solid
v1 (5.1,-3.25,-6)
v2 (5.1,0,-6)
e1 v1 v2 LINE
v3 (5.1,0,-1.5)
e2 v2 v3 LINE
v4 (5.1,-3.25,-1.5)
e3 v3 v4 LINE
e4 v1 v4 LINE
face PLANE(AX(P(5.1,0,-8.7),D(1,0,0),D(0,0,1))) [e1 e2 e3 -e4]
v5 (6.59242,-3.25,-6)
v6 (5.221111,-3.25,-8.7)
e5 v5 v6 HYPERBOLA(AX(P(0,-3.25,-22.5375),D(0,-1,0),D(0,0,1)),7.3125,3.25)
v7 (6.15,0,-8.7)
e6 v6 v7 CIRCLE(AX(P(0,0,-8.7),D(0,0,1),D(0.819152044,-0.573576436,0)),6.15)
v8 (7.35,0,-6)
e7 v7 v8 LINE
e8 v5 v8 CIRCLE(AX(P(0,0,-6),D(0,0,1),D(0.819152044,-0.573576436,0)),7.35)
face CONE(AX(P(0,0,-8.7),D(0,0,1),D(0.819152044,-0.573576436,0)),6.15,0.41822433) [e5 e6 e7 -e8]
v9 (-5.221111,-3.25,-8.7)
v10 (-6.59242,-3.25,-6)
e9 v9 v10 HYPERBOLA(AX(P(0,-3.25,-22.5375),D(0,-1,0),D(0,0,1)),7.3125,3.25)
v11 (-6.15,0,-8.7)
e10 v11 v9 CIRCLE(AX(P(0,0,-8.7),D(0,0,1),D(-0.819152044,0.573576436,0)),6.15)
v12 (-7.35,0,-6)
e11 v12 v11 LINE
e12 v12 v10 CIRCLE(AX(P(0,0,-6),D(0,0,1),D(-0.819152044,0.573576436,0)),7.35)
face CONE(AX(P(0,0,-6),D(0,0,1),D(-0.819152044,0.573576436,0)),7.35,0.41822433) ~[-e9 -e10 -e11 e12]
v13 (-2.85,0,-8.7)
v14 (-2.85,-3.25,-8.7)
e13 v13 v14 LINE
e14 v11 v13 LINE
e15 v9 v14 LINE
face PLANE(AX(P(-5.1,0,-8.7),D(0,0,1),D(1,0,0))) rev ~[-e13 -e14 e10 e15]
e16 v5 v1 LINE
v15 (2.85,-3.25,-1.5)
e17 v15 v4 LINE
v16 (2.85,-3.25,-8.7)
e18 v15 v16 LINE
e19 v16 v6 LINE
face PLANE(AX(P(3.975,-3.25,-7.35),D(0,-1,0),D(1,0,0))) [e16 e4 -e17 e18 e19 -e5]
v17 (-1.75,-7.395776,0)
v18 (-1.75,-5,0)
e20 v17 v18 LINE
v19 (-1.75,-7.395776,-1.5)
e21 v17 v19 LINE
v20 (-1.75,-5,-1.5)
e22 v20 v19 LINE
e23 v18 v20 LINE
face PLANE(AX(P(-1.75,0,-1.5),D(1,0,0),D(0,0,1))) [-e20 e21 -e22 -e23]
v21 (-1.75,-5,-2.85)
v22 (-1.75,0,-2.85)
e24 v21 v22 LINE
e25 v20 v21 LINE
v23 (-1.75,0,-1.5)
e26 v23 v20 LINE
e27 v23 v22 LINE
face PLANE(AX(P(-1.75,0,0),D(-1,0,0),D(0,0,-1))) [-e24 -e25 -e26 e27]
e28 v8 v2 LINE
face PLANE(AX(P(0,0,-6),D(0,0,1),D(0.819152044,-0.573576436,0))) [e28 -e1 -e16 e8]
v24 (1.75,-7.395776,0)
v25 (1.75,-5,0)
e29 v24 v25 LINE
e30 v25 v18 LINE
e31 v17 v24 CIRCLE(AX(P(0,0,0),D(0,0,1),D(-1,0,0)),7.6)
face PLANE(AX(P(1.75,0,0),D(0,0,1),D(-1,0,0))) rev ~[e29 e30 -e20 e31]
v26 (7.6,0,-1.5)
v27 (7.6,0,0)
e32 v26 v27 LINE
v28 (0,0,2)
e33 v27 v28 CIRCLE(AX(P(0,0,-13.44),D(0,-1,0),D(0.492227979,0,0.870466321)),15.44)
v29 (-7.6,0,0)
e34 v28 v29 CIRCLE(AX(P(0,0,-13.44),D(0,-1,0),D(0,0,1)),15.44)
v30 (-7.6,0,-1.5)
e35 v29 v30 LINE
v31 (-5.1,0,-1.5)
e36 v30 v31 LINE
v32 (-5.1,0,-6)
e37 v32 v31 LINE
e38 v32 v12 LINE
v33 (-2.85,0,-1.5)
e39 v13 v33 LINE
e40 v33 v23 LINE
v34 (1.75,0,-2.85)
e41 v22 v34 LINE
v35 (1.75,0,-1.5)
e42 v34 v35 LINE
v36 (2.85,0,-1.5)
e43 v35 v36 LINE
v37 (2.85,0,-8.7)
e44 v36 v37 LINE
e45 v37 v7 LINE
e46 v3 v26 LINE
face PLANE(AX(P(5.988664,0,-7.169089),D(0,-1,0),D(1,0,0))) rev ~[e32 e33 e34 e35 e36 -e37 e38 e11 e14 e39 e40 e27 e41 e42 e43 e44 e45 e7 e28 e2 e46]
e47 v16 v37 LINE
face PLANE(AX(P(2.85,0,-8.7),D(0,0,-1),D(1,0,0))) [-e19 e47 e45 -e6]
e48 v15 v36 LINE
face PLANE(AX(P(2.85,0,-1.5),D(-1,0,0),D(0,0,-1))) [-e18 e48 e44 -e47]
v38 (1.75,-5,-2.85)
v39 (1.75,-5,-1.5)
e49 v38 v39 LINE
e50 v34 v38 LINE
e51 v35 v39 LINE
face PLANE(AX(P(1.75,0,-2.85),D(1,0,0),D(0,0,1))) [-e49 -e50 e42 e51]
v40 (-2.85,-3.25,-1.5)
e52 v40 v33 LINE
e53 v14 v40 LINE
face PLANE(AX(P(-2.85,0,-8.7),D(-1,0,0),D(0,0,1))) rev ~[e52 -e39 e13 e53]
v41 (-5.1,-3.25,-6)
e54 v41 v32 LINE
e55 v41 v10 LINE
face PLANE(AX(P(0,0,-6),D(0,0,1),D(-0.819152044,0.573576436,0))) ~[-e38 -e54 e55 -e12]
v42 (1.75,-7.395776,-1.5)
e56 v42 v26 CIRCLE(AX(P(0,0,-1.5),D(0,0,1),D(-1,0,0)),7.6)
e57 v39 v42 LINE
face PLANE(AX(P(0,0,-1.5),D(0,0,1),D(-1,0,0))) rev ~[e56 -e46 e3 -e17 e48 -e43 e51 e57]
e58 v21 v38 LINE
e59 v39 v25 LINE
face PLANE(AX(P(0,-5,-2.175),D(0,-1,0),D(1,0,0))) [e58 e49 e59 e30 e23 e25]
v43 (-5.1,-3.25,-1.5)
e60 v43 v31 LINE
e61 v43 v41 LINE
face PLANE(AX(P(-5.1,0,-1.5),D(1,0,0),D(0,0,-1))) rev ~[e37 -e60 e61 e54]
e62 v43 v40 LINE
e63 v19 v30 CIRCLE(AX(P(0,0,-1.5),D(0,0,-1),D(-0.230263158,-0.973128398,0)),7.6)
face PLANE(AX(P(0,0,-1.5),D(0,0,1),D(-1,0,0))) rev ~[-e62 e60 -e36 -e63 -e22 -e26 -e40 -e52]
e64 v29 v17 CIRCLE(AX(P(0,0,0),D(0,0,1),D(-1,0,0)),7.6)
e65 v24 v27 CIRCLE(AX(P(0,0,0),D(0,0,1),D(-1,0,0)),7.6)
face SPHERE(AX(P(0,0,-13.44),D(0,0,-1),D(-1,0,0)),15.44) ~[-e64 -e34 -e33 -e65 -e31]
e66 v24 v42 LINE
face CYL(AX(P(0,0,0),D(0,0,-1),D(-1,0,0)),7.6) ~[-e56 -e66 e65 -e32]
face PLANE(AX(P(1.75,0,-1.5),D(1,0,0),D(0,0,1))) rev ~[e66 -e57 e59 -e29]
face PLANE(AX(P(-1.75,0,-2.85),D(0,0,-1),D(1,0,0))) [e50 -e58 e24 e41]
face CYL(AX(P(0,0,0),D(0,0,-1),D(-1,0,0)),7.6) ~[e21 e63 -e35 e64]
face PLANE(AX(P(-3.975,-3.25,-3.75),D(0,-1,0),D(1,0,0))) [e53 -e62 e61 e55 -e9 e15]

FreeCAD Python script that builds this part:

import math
import FreeCAD as App
import Part
import Sketcher

doc = App.newDocument("Part")
body = doc.addObject("PartDesign::Body", "Body")

# Sketch on XZ plane
sketch1 = body.newObject("Sketcher::SketchObject", "Sketch")
sketch1.AttachmentSupport = (doc.getObject("XZ_Plane"), [""])
sketch1.MapMode = "FlatFace"
sketch1.addGeometry(Part.LineSegment(App.Vector(-7.6, 0, 0), App.Vector(-7.6, -1.5, 0)), False)
sketch1.addGeometry(Part.LineSegment(App.Vector(-7.6, -1.5, 0), App.Vector(0, -1.5, 0)), False)
sketch1.addGeometry(Part.LineSegment(App.Vector(0, -1.5, 0), App.Vector(0, 2, 0)), False)
sketch1.addGeometry(Part.ArcOfCircle(Part.Circle(App.Vector(0, -13.44, 0), App.Vector(0, 0, 1), 15.44), math.radians(90), math.radians(119.487126)), False)
sketch1.addConstraint(Sketcher.Constraint("Coincident", 0, 2, 1, 1))
sketch1.addConstraint(Sketcher.Constraint("Coincident", 1, 2, 2, 1))
sketch1.addConstraint(Sketcher.Constraint("Coincident", 2, 2, 3, 1))
sketch1.addConstraint(Sketcher.Constraint("Coincident", 3, 2, 0, 1))
sketch1.addConstraint(Sketcher.Constraint("Vertical", 0))
sketch1.addConstraint(Sketcher.Constraint("Horizontal", 1))
sketch1.addConstraint(Sketcher.Constraint("Vertical", 2))
sketch1.addConstraint(Sketcher.Constraint("PointOnObject", 3, 3, -2))
sketch1.addConstraint(Sketcher.Constraint("PointOnObject", 1, 2, -2))
sketch1.addConstraint(Sketcher.Constraint("PointOnObject", 3, 2, -1))
sketch1.addConstraint(Sketcher.Constraint("Radius", 3, 15.44))
sketch1.addConstraint(Sketcher.Constraint("DistanceX", 1, 1, 1, 2, 7.6))
sketch1.addConstraint(Sketcher.Constraint("DistanceY", 0, 2, 0, 1, 1.5))
revolution = body.newObject("PartDesign::Revolution", "Revolution")
revolution.Profile = sketch1
revolution.ReferenceAxis = (sketch1, ["V_Axis"])
revolution.Angle = 360

# Sketch on XZ plane
sketch2 = body.newObject("Sketcher::SketchObject", "Sketch001")
sketch2.AttachmentSupport = (doc.getObject("XZ_Plane"), [""])
sketch2.MapMode = "FlatFace"
sketch2.addGeometry(Part.LineSegment(App.Vector(-5.1, -1.5, 0), App.Vector(-5.1, -8.7, 0)), False)
sketch2.addGeometry(Part.LineSegment(App.Vector(-5.1, -8.7, 0), App.Vector(-2.85, -8.7, 0)), False)
sketch2.addGeometry(Part.LineSegment(App.Vector(-2.85, -8.7, 0), App.Vector(-2.85, -1.5, 0)), False)
sketch2.addGeometry(Part.LineSegment(App.Vector(-2.85, -1.5, 0), App.Vector(-5.1, -1.5, 0)), False)
sketch2.addGeometry(Part.LineSegment(App.Vector(2.85, -8.7, 0), App.Vector(5.1, -8.7, 0)), False)
sketch2.addGeometry(Part.LineSegment(App.Vector(5.1, -8.7, 0), App.Vector(5.1, -1.5, 0)), False)
sketch2.addGeometry(Part.LineSegment(App.Vector(5.1, -1.5, 0), App.Vector(2.85, -1.5, 0)), False)
sketch2.addGeometry(Part.LineSegment(App.Vector(2.85, -1.5, 0), App.Vector(2.85, -8.7, 0)), False)
sketch2.addConstraint(Sketcher.Constraint("Coincident", 0, 2, 1, 1))
sketch2.addConstraint(Sketcher.Constraint("Coincident", 1, 2, 2, 1))
sketch2.addConstraint(Sketcher.Constraint("Coincident", 2, 2, 3, 1))
sketch2.addConstraint(Sketcher.Constraint("Coincident", 3, 2, 0, 1))
sketch2.addConstraint(Sketcher.Constraint("Coincident", 4, 2, 5, 1))
sketch2.addConstraint(Sketcher.Constraint("Coincident", 5, 2, 6, 1))
sketch2.addConstraint(Sketcher.Constraint("Coincident", 6, 2, 7, 1))
sketch2.addConstraint(Sketcher.Constraint("Coincident", 7, 2, 4, 1))
sketch2.addConstraint(Sketcher.Constraint("Vertical", 0))
sketch2.addConstraint(Sketcher.Constraint("Horizontal", 1))
sketch2.addConstraint(Sketcher.Constraint("Vertical", 2))
sketch2.addConstraint(Sketcher.Constraint("Horizontal", 3))
sketch2.addConstraint(Sketcher.Constraint("Horizontal", 4))
sketch2.addConstraint(Sketcher.Constraint("Vertical", 5))
sketch2.addConstraint(Sketcher.Constraint("Horizontal", 6))
sketch2.addConstraint(Sketcher.Constraint("Vertical", 7))
sketch2.addConstraint(Sketcher.Constraint("Symmetric", 0, 2, 4, 2, -2))
sketch2.addConstraint(Sketcher.Constraint("Symmetric", 2, 2, 6, 2, -2))
sketch2.addConstraint(Sketcher.Constraint("DistanceY", 0, 2, 0, 1, 7.2))
sketch2.addConstraint(Sketcher.Constraint("DistanceX", 1, 1, 1, 2, 2.25))
sketch2.addConstraint(Sketcher.Constraint("DistanceX", 0, 2, -1, 1, 5.1))
sketch2.addConstraint(Sketcher.Constraint("DistanceY", 0, 2, -1, 1, 8.7))
pad1 = body.newObject("PartDesign::Pad", "Pad")
pad1.Profile = sketch2
pad1.Length = 6.5
pad1.Midplane = True

# Sketch on an angled plane
sketch3 = body.newObject("Sketcher::SketchObject", "Sketch002")
sketch3.Placement = App.Placement(App.Vector(0, 0, 0), App.Rotation(App.Vector(0.819152044, -0.573576436, 0), App.Vector(0, 0, 0.999999999), App.Vector(-0.573576436, -0.819152044, 0), "ZXY"))
sketch3.addGeometry(Part.LineSegment(App.Vector(-5.1, -8.7, 0), App.Vector(-5.1, -6, 0)), False)
sketch3.addGeometry(Part.LineSegment(App.Vector(-5.1, -6, 0), App.Vector(-7.35, -6, 0)), False)
sketch3.addGeometry(Part.LineSegment(App.Vector(-7.35, -6, 0), App.Vector(-6.15, -8.7, 0)), False)
sketch3.addGeometry(Part.LineSegment(App.Vector(-6.15, -8.7, 0), App.Vector(-5.1, -8.7, 0)), False)
sketch3.addGeometry(Part.LineSegment(App.Vector(7.35, -6, 0), App.Vector(5.1, -6, 0)), False)
sketch3.addGeometry(Part.LineSegment(App.Vector(5.1, -6, 0), App.Vector(5.1, -8.7, 0)), False)
sketch3.addGeometry(Part.LineSegment(App.Vector(5.1, -8.7, 0), App.Vector(6.15, -8.7, 0)), False)
sketch3.addGeometry(Part.LineSegment(App.Vector(6.15, -8.7, 0), App.Vector(7.35, -6, 0)), False)
sketch3.addConstraint(Sketcher.Constraint("Coincident", 0, 2, 1, 1))
sketch3.addConstraint(Sketcher.Constraint("Coincident", 1, 2, 2, 1))
sketch3.addConstraint(Sketcher.Constraint("Coincident", 2, 2, 3, 1))
sketch3.addConstraint(Sketcher.Constraint("Coincident", 3, 2, 0, 1))
sketch3.addConstraint(Sketcher.Constraint("Coincident", 4, 2, 5, 1))
sketch3.addConstraint(Sketcher.Constraint("Coincident", 5, 2, 6, 1))
sketch3.addConstraint(Sketcher.Constraint("Coincident", 6, 2, 7, 1))
sketch3.addConstraint(Sketcher.Constraint("Coincident", 7, 2, 4, 1))
sketch3.addConstraint(Sketcher.Constraint("Vertical", 0))
sketch3.addConstraint(Sketcher.Constraint("Horizontal", 1))
sketch3.addConstraint(Sketcher.Constraint("Horizontal", 3))
sketch3.addConstraint(Sketcher.Constraint("Horizontal", 4))
sketch3.addConstraint(Sketcher.Constraint("Vertical", 5))
sketch3.addConstraint(Sketcher.Constraint("Horizontal", 6))
sketch3.addConstraint(Sketcher.Constraint("Symmetric", 0, 2, 4, 2, -2))
sketch3.addConstraint(Sketcher.Constraint("Symmetric", 2, 2, 6, 2, -2))
sketch3.addConstraint(Sketcher.Constraint("Equal", 1, 4))
sketch3.addConstraint(Sketcher.Constraint("DistanceY", 0, 1, 0, 2, 2.7))
sketch3.addConstraint(Sketcher.Constraint("DistanceY", 0, 2, -1, 1, 6.0))
sketch3.addConstraint(Sketcher.Constraint("DistanceX", 1, 2, 1, 1, 2.25))
sketch3.addConstraint(Sketcher.Constraint("DistanceX", 3, 1, 3, 2, 1.05))
sketch3.addConstraint(Sketcher.Constraint("DistanceX", 0, 2, -1, 1, 5.1))
revolution2 = body.newObject("PartDesign::Revolution", "Revolution001")
revolution2.Profile = sketch3
revolution2.ReferenceAxis = (sketch3, ["V_Axis"])
revolution2.Angle = 70

# Sketch on XZ plane
sketch4 = body.newObject("Sketcher::SketchObject", "Sketch003")
sketch4.AttachmentSupport = (doc.getObject("XZ_Plane"), [""])
sketch4.MapMode = "FlatFace"
sketch4.addGeometry(Part.LineSegment(App.Vector(-1.75, 0, 0), App.Vector(-1.75, -1.5, 0)), False)
sketch4.addGeometry(Part.LineSegment(App.Vector(-1.75, -1.5, 0), App.Vector(1.75, -1.5, 0)), False)
sketch4.addGeometry(Part.LineSegment(App.Vector(1.75, -1.5, 0), App.Vector(1.75, 0, 0)), False)
sketch4.addGeometry(Part.LineSegment(App.Vector(1.75, 0, 0), App.Vector(-1.75, 0, 0)), False)
sketch4.addConstraint(Sketcher.Constraint("Coincident", 0, 2, 1, 1))
sketch4.addConstraint(Sketcher.Constraint("Coincident", 1, 2, 2, 1))
sketch4.addConstraint(Sketcher.Constraint("Coincident", 2, 2, 3, 1))
sketch4.addConstraint(Sketcher.Constraint("Coincident", 3, 2, 0, 1))
sketch4.addConstraint(Sketcher.Constraint("Vertical", 0))
sketch4.addConstraint(Sketcher.Constraint("Horizontal", 1))
sketch4.addConstraint(Sketcher.Constraint("Vertical", 2))
sketch4.addConstraint(Sketcher.Constraint("Horizontal", 3))
sketch4.addConstraint(Sketcher.Constraint("Symmetric", 2, 2, 3, 2, -1, 1))
sketch4.addConstraint(Sketcher.Constraint("DistanceX", 1, 1, 1, 2, 3.5))
sketch4.addConstraint(Sketcher.Constraint("DistanceY", 0, 2, 0, 1, 1.5))
pocket1 = body.newObject("PartDesign::Pocket", "Pocket")
pocket1.Profile = sketch4
pocket1.Length = 25
pocket1.Midplane = True

# Sketch on XZ plane
sketch5 = body.newObject("Sketcher::SketchObject", "Sketch004")
sketch5.AttachmentSupport = (doc.getObject("XZ_Plane"), [""])
sketch5.MapMode = "FlatFace"
sketch5.addGeometry(Part.LineSegment(App.Vector(-1.75, -2.85, 0), App.Vector(1.75, -2.85, 0)), False)
sketch5.addGeometry(Part.LineSegment(App.Vector(1.75, -2.85, 0), App.Vector(1.75, 0, 0)), False)
sketch5.addGeometry(Part.LineSegment(App.Vector(1.75, 0, 0), App.Vector(-1.75, 0, 0)), False)
sketch5.addGeometry(Part.LineSegment(App.Vector(-1.75, 0, 0), App.Vector(-1.75, -2.85, 0)), False)
sketch5.addConstraint(Sketcher.Constraint("Coincident", 0, 2, 1, 1))
sketch5.addConstraint(Sketcher.Constraint("Coincident", 1, 2, 2, 1))
sketch5.addConstraint(Sketcher.Constraint("Coincident", 2, 2, 3, 1))
sketch5.addConstraint(Sketcher.Constraint("Coincident", 3, 2, 0, 1))
sketch5.addConstraint(Sketcher.Constraint("Horizontal", 0))
sketch5.addConstraint(Sketcher.Constraint("Vertical", 1))
sketch5.addConstraint(Sketcher.Constraint("Horizontal", 2))
sketch5.addConstraint(Sketcher.Constraint("Vertical", 3))
sketch5.addConstraint(Sketcher.Constraint("Symmetric", 1, 2, 2, 2, -1, 1))
sketch5.addConstraint(Sketcher.Constraint("DistanceX", 0, 1, 0, 2, 3.5))
sketch5.addConstraint(Sketcher.Constraint("DistanceY", 1, 1, 1, 2, 2.85))
pad2 = body.newObject("PartDesign::Pad", "Pad001")
pad2.Profile = sketch5
pad2.Length = 10
pad2.Midplane = True

# Sketch on XZ plane
sketch6 = body.newObject("Sketcher::SketchObject", "Sketch005")
sketch6.AttachmentSupport = (doc.getObject("XZ_Plane"), [""])
sketch6.MapMode = "FlatFace"
sketch6.AttachmentOffset = App.Placement(App.Vector(0, 0, 3.25), App.Rotation())
sketch6.addGeometry(Part.LineSegment(App.Vector(-7.35, -6, 0), App.Vector(-6.15, -8.7, 0)), False)
sketch6.addGeometry(Part.LineSegment(App.Vector(-6.15, -8.7, 0), App.Vector(-2.85, -8.7, 0)), False)
sketch6.addGeometry(Part.LineSegment(App.Vector(-2.85, -8.7, 0), App.Vector(-2.85, -6, 0)), False)
sketch6.addGeometry(Part.LineSegment(App.Vector(-2.85, -6, 0), App.Vector(-7.35, -6, 0)), False)
sketch6.addGeometry(Part.LineSegment(App.Vector(2.85, -6, 0), App.Vector(2.85, -8.7, 0)), False)
sketch6.addGeometry(Part.LineSegment(App.Vector(2.85, -8.7, 0), App.Vector(6.15, -8.7, 0)), False)
sketch6.addGeometry(Part.LineSegment(App.Vector(6.15, -8.7, 0), App.Vector(7.35, -6, 0)), False)
sketch6.addGeometry(Part.LineSegment(App.Vector(7.35, -6, 0), App.Vector(2.85, -6, 0)), False)
sketch6.addConstraint(Sketcher.Constraint("Coincident", 0, 2, 1, 1))
sketch6.addConstraint(Sketcher.Constraint("Coincident", 1, 2, 2, 1))
sketch6.addConstraint(Sketcher.Constraint("Coincident", 2, 2, 3, 1))
sketch6.addConstraint(Sketcher.Constraint("Coincident", 3, 2, 0, 1))
sketch6.addConstraint(Sketcher.Constraint("Coincident", 4, 2, 5, 1))
sketch6.addConstraint(Sketcher.Constraint("Coincident", 5, 2, 6, 1))
sketch6.addConstraint(Sketcher.Constraint("Coincident", 6, 2, 7, 1))
sketch6.addConstraint(Sketcher.Constraint("Coincident", 7, 2, 4, 1))
sketch6.addConstraint(Sketcher.Constraint("Horizontal", 1))
sketch6.addConstraint(Sketcher.Constraint("Vertical", 2))
sketch6.addConstraint(Sketcher.Constraint("Horizontal", 3))
sketch6.addConstraint(Sketcher.Constraint("Vertical", 4))
sketch6.addConstraint(Sketcher.Constraint("Horizontal", 5))
sketch6.addConstraint(Sketcher.Constraint("Horizontal", 7))
sketch6.addConstraint(Sketcher.Constraint("Symmetric", 1, 2, 4, 2, -2))
sketch6.addConstraint(Sketcher.Constraint("Symmetric", 3, 2, 6, 2, -2))
sketch6.addConstraint(Sketcher.Constraint("Equal", 1, 5))
sketch6.addConstraint(Sketcher.Constraint("DistanceX", 1, 1, 1, 2, 3.3))
sketch6.addConstraint(Sketcher.Constraint("DistanceX", 3, 2, 3, 1, 4.5))
sketch6.addConstraint(Sketcher.Constraint("DistanceY", 2, 1, 2, 2, 2.7))
sketch6.addConstraint(Sketcher.Constraint("DistanceY", 2, 2, -1, 1, 6.0))
sketch6.addConstraint(Sketcher.Constraint("DistanceX", 0, 2, 4, 2, 9.0))
pocket2 = body.newObject("PartDesign::Pocket", "Pocket001")
pocket2.Profile = sketch6
pocket2.Length = 4.351
pocket2.Reversed = True

# Sketch on XZ plane
sketch7 = body.newObject("Sketcher::SketchObject", "Sketch006")
sketch7.AttachmentSupport = (doc.getObject("XZ_Plane"), [""])
sketch7.MapMode = "FlatFace"
sketch7.addGeometry(Part.LineSegment(App.Vector(1.75, -2.85, 0), App.Vector(1.75, -1.5, 0)), False)
sketch7.addGeometry(Part.LineSegment(App.Vector(1.75, -1.5, 0), App.Vector(2.85, -1.5, 0)), False)
sketch7.addGeometry(Part.LineSegment(App.Vector(2.85, -1.5, 0), App.Vector(2.85, -8.7, 0)), False)
sketch7.addGeometry(Part.LineSegment(App.Vector(2.85, -8.7, 0), App.Vector(6.15, -8.7, 0)), False)
sketch7.addGeometry(Part.LineSegment(App.Vector(6.15, -8.7, 0), App.Vector(7.35, -6, 0)), False)
sketch7.addGeometry(Part.LineSegment(App.Vector(7.35, -6, 0), App.Vector(5.1, -6, 0)), False)
sketch7.addGeometry(Part.LineSegment(App.Vector(5.1, -6, 0), App.Vector(5.1, -1.5, 0)), False)
sketch7.addGeometry(Part.LineSegment(App.Vector(5.1, -1.5, 0), App.Vector(7.6, -1.5, 0)), False)
sketch7.addGeometry(Part.LineSegment(App.Vector(7.6, -1.5, 0), App.Vector(7.6, 0, 0)), False)
sketch7.addGeometry(Part.ArcOfCircle(Part.Circle(App.Vector(0, -13.44, 0), App.Vector(0, 0, 1), 15.44), math.radians(60.512874), math.radians(90)), False)
sketch7.addGeometry(Part.ArcOfCircle(Part.Circle(App.Vector(0, -13.44, 0), App.Vector(0, 0, 1), 15.44), math.radians(90), math.radians(119.487126)), False)
sketch7.addGeometry(Part.LineSegment(App.Vector(-7.6, 0, 0), App.Vector(-7.6, -1.5, 0)), False)
sketch7.addGeometry(Part.LineSegment(App.Vector(-7.6, -1.5, 0), App.Vector(-5.1, -1.5, 0)), False)
sketch7.addGeometry(Part.LineSegment(App.Vector(-5.1, -1.5, 0), App.Vector(-5.1, -6, 0)), False)
sketch7.addGeometry(Part.LineSegment(App.Vector(-5.1, -6, 0), App.Vector(-7.35, -6, 0)), False)
sketch7.addGeometry(Part.LineSegment(App.Vector(-7.35, -6, 0), App.Vector(-6.15, -8.7, 0)), False)
sketch7.addGeometry(Part.LineSegment(App.Vector(-6.15, -8.7, 0), App.Vector(-2.85, -8.7, 0)), False)
sketch7.addGeometry(Part.LineSegment(App.Vector(-2.85, -8.7, 0), App.Vector(-2.85, -1.5, 0)), False)
sketch7.addGeometry(Part.LineSegment(App.Vector(-2.85, -1.5, 0), App.Vector(-1.75, -1.5, 0)), False)
sketch7.addGeometry(Part.LineSegment(App.Vector(-1.75, -1.5, 0), App.Vector(-1.75, -2.85, 0)), False)
sketch7.addGeometry(Part.LineSegment(App.Vector(-1.75, -2.85, 0), App.Vector(1.75, -2.85, 0)), False)
sketch7.addConstraint(Sketcher.Constraint("Coincident", 0, 2, 1, 1))
sketch7.addConstraint(Sketcher.Constraint("Coincident", 1, 2, 2, 1))
sketch7.addConstraint(Sketcher.Constraint("Coincident", 2, 2, 3, 1))
sketch7.addConstraint(Sketcher.Constraint("Coincident", 3, 2, 4, 1))
sketch7.addConstraint(Sketcher.Constraint("Coincident", 4, 2, 5, 1))
sketch7.addConstraint(Sketcher.Constraint("Coincident", 5, 2, 6, 1))
sketch7.addConstraint(Sketcher.Constraint("Coincident", 6, 2, 7, 1))
sketch7.addConstraint(Sketcher.Constraint("Coincident", 7, 2, 8, 1))
sketch7.addConstraint(Sketcher.Constraint("Coincident", 8, 2, 9, 1))
sketch7.addConstraint(Sketcher.Constraint("Tangent", 9, 2, 10, 1))
sketch7.addConstraint(Sketcher.Constraint("Coincident", 10, 2, 11, 1))
sketch7.addConstraint(Sketcher.Constraint("Coincident", 11, 2, 12, 1))
sketch7.addConstraint(Sketcher.Constraint("Coincident", 12, 2, 13, 1))
sketch7.addConstraint(Sketcher.Constraint("Coincident", 13, 2, 14, 1))
sketch7.addConstraint(Sketcher.Constraint("Coincident", 14, 2, 15, 1))
sketch7.addConstraint(Sketcher.Constraint("Coincident", 15, 2, 16, 1))
sketch7.addConstraint(Sketcher.Constraint("Coincident", 16, 2, 17, 1))
sketch7.addConstraint(Sketcher.Constraint("Coincident", 17, 2, 18, 1))
sketch7.addConstraint(Sketcher.Constraint("Coincident", 18, 2, 19, 1))
sketch7.addConstraint(Sketcher.Constraint("Coincident", 19, 2, 20, 1))
sketch7.addConstraint(Sketcher.Constraint("Coincident", 20, 2, 0, 1))
sketch7.addConstraint(Sketcher.Constraint("Vertical", 0))
sketch7.addConstraint(Sketcher.Constraint("Horizontal", 1))
sketch7.addConstraint(Sketcher.Constraint("Vertical", 2))
sketch7.addConstraint(Sketcher.Constraint("Horizontal", 3))
sketch7.addConstraint(Sketcher.Constraint("Horizontal", 5))
sketch7.addConstraint(Sketcher.Constraint("Vertical", 6))
sketch7.addConstraint(Sketcher.Constraint("Horizontal", 7))
sketch7.addConstraint(Sketcher.Constraint("Vertical", 8))
sketch7.addConstraint(Sketcher.Constraint("Vertical", 11))
sketch7.addConstraint(Sketcher.Constraint("Horizontal", 12))
sketch7.addConstraint(Sketcher.Constraint("Vertical", 13))
sketch7.addConstraint(Sketcher.Constraint("Horizontal", 14))
sketch7.addConstraint(Sketcher.Constraint("Horizontal", 16))
sketch7.addConstraint(Sketcher.Constraint("Vertical", 17))
sketch7.addConstraint(Sketcher.Constraint("Horizontal", 18))
sketch7.addConstraint(Sketcher.Constraint("Vertical", 19))
sketch7.addConstraint(Sketcher.Constraint("Horizontal", 20))
sketch7.addConstraint(Sketcher.Constraint("Equal", 9, 10))
sketch7.addConstraint(Sketcher.Constraint("Symmetric", 8, 2, 10, 2, -1, 1))
sketch7.addConstraint(Sketcher.Constraint("Symmetric", 6, 2, 12, 2, -2))
sketch7.addConstraint(Sketcher.Constraint("Symmetric", 4, 2, 14, 2, -2))
sketch7.addConstraint(Sketcher.Constraint("Symmetric", 3, 2, 15, 2, -2))
sketch7.addConstraint(Sketcher.Constraint("Symmetric", 1, 2, 17, 2, -2))
sketch7.addConstraint(Sketcher.Constraint("PointOnObject", 9, 3, -2))
sketch7.addConstraint(Sketcher.Constraint("PointOnObject", 9, 2, -2))
sketch7.addConstraint(Sketcher.Constraint("Horizontal", 1, 2, 6, 2))
sketch7.addConstraint(Sketcher.Constraint("Equal", 1, 18))
sketch7.addConstraint(Sketcher.Constraint("Radius", 9, 15.44))
sketch7.addConstraint(Sketcher.Constraint("DistanceX", 1, 1, 1, 2, 1.1))
sketch7.addConstraint(Sketcher.Constraint("DistanceX", 3, 1, 3, 2, 3.3))
sketch7.addConstraint(Sketcher.Constraint("DistanceX", 7, 1, 7, 2, 2.5))
sketch7.addConstraint(Sketcher.Constraint("DistanceX", 20, 1, 20, 2, 3.5))
sketch7.addConstraint(Sketcher.Constraint("DistanceY", 2, 2, 2, 1, 7.2))
sketch7.addConstraint(Sketcher.Constraint("DistanceY", 6, 1, 6, 2, 4.5))
sketch7.addConstraint(Sketcher.Constraint("DistanceY", 8, 1, 8, 2, 1.5))
sketch7.addConstraint(Sketcher.Constraint("DistanceY", -1, 1, 9, 2, 2.0))
sketch7.addConstraint(Sketcher.Constraint("DistanceX", 5, 2, 5, 1, 2.25))
sketch7.addConstraint(Sketcher.Constraint("DistanceY", 0, 1, 0, 2, 1.35))
pocket3 = body.newObject("PartDesign::Pocket", "Pocket002")
pocket3.Profile = sketch7
pocket3.Type = "ThroughAll"

doc.recompute()
